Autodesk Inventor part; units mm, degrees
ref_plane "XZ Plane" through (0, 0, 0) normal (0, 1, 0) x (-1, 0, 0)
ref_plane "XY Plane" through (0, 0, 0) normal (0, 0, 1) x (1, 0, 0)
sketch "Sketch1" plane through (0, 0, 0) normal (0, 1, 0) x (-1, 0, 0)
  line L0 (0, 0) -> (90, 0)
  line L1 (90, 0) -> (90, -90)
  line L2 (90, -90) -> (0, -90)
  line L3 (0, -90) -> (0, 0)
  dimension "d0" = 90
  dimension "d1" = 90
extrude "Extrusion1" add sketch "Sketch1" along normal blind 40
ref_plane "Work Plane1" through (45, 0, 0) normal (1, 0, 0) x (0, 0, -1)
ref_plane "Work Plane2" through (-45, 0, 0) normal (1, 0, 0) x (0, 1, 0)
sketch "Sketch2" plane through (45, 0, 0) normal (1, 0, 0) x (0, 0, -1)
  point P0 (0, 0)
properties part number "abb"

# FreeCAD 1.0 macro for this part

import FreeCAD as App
import Part
import Sketcher
from FreeCAD import Vector

doc = App.newDocument("Part")
params = doc.addObject("Spreadsheet::Sheet", "Params")
for row, (alias, value) in enumerate([
    ("sketch1_width", "90 mm"),
    ("pad1_length", "40 mm"),
], start=1):
    params.set(f"A{row}", alias)
    params.set(f"B{row}", "=" + value)
    params.setAlias(f"B{row}", alias)

body = doc.addObject("PartDesign::Body", "Body")

# Sketch on XZ plane
sketch1 = body.newObject("Sketcher::SketchObject", "Sketch")
sketch1.AttachmentSupport = (doc.getObject("XZ_Plane"), [""])
sketch1.MapMode = "FlatFace"
sketch1.addGeometry([
    Part.LineSegment(Vector(-90, 0, 0), Vector(0, 0, 0)),
    Part.LineSegment(Vector(0, 0, 0), Vector(0, -90, 0)),
    Part.LineSegment(Vector(0, -90, 0), Vector(-90, -90, 0)),
    Part.LineSegment(Vector(-90, -90, 0), Vector(-90, 0, 0)),
], False)
sketch1.addConstraint([
    Sketcher.Constraint("Coincident", 0, 2, 1, 1),
    Sketcher.Constraint("Coincident", 1, 2, 2, 1),
    Sketcher.Constraint("Coincident", 2, 2, 3, 1),
    Sketcher.Constraint("Coincident", 3, 2, 0, 1),
    Sketcher.Constraint("Horizontal", 0),
    Sketcher.Constraint("Vertical", 1),
    Sketcher.Constraint("Horizontal", 2),
    Sketcher.Constraint("Vertical", 3),
    Sketcher.Constraint("Coincident", 0, 2, -1, 1),
    Sketcher.Constraint("Equal", 2, 1),
    Sketcher.Constraint("DistanceX", 0, 1, 0, 2, 90.0),
])
sketch1.setExpression("Constraints[10]", "Params.sketch1_width")
pad1 = body.newObject("PartDesign::Pad", "Pad")
pad1.Profile = sketch1
pad1.setExpression("Length", "Params.pad1_length")
pad1.Reversed = True

doc.recompute()
